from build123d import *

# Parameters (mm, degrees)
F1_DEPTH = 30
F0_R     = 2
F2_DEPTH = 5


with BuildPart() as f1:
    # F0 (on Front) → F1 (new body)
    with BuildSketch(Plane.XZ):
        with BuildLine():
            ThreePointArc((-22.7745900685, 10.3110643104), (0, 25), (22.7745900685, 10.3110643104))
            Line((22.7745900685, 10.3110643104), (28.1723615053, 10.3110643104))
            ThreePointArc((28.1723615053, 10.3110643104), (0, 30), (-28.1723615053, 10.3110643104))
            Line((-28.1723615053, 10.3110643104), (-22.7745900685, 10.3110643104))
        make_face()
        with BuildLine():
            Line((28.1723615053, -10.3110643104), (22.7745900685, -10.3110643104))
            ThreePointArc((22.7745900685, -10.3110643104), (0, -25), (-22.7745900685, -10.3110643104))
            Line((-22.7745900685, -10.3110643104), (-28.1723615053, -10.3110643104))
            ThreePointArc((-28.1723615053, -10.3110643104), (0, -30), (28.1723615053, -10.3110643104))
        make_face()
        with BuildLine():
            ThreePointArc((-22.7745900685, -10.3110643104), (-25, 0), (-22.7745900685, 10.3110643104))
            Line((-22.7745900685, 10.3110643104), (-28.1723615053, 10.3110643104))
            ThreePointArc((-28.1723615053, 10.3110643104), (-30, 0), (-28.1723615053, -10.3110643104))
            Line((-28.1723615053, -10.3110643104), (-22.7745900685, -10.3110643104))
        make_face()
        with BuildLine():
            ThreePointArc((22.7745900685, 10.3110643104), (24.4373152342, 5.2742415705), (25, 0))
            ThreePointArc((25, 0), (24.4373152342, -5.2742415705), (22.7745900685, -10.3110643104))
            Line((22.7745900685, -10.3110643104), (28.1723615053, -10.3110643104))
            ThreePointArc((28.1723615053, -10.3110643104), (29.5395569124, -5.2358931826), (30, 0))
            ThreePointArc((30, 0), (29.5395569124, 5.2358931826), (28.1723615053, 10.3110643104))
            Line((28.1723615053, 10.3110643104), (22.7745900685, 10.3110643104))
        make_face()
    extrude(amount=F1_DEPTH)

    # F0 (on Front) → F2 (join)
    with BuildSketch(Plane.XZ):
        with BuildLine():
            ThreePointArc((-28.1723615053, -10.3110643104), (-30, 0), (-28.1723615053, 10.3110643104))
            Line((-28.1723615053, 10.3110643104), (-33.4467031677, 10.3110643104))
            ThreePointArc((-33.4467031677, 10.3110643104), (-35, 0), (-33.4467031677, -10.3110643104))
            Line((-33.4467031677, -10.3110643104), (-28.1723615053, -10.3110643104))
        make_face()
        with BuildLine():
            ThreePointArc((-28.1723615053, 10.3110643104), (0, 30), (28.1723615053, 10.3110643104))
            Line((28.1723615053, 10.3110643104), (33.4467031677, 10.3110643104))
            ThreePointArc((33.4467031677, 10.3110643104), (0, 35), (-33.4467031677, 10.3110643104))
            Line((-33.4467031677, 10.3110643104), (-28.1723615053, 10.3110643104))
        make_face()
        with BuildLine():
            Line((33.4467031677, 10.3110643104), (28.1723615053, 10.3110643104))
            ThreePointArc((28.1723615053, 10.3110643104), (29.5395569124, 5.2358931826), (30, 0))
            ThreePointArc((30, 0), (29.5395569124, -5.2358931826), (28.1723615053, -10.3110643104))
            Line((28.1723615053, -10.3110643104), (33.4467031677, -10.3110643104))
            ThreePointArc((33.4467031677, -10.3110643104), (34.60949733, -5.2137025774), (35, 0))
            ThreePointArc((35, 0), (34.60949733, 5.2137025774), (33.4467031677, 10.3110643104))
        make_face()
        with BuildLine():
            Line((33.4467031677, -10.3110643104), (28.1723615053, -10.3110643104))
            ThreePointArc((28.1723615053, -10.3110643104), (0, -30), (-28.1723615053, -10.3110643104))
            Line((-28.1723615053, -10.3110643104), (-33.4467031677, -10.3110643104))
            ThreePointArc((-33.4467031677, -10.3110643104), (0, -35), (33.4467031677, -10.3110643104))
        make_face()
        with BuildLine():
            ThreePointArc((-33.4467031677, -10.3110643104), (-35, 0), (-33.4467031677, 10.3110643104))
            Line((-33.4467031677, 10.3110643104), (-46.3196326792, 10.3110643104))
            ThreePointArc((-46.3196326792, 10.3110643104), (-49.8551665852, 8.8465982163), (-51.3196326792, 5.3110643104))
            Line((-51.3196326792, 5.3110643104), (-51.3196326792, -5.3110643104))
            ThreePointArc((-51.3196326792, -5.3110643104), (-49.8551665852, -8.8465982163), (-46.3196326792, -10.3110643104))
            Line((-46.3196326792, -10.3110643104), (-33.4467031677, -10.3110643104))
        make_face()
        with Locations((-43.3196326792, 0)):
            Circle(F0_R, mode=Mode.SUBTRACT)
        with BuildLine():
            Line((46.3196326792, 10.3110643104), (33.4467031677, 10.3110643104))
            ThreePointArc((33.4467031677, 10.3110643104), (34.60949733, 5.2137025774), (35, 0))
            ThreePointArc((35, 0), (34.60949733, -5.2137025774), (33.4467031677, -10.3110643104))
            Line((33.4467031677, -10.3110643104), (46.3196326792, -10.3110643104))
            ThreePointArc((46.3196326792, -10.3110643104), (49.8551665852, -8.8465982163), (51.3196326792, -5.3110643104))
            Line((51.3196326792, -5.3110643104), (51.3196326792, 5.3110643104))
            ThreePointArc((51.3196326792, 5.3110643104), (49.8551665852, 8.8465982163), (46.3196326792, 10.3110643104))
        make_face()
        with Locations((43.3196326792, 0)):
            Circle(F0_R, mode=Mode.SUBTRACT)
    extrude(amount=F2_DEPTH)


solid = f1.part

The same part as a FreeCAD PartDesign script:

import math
import FreeCAD as App
import Part
import Sketcher

doc = App.newDocument("Part")
params = doc.addObject("Spreadsheet::Sheet", "Params")
for row, (alias, value) in enumerate([
    ("sketch1_radius", "30 mm"),
    ("sketch1_radius2", "25 mm"),
    ("pad1_length", "30 mm"),
    ("sketch2_diameter", "4 mm"),
    ("sketch2_radius", "35 mm"),
    ("sketch2_radius2", "5 mm"),
    ("sketch2_radius3", "30 mm"),
    ("pad2_length", "5 mm"),
], start=1):
    params.set(f"A{row}", alias)
    params.set(f"B{row}", "=" + value)
    params.setAlias(f"B{row}", alias)

body = doc.addObject("PartDesign::Body", "Body")

sketch1 = body.newObject("Sketcher::SketchObject", "Sketch")
sketch1.AttachmentSupport = (doc.getObject("XZ_Plane"), [""])
sketch1.MapMode = "FlatFace"
sketch1.addGeometry(Part.ArcOfCircle(Part.Circle(App.Vector(0, 0, 0), App.Vector(0, 0, 1), 30), math.radians(20), math.radians(160)), False)
sketch1.addGeometry(Part.ArcOfCircle(Part.Circle(App.Vector(0, 0, 0), App.Vector(0, 0, 1), 30), math.radians(160), math.radians(200)), False)
sketch1.addGeometry(Part.ArcOfCircle(Part.Circle(App.Vector(0, 0, 0), App.Vector(0, 0, 1), 30), math.radians(-160), math.radians(-20)), False)
sketch1.addGeometry(Part.ArcOfCircle(Part.Circle(App.Vector(0, 0, 0), App.Vector(0, 0, 1), 30), math.radians(-20), math.radians(0)), False)
sketch1.addGeometry(Part.ArcOfCircle(Part.Circle(App.Vector(0, 0, 0), App.Vector(0, 0, 1), 30), math.radians(0), math.radians(20)), False)
sketch1.addGeometry(Part.ArcOfCircle(Part.Circle(App.Vector(0, 0, 0), App.Vector(0, 0, 1), 25), math.radians(24), math.radians(156)), False)
sketch1.addGeometry(Part.ArcOfCircle(Part.Circle(App.Vector(0, 0, 0), App.Vector(0, 0, 1), 25), math.radians(0), math.radians(24)), False)
sketch1.addGeometry(Part.ArcOfCircle(Part.Circle(App.Vector(0, 0, 0), App.Vector(0, 0, 1), 25), math.radians(-24), math.radians(0)), False)
sketch1.addGeometry(Part.ArcOfCircle(Part.Circle(App.Vector(0, 0, 0), App.Vector(0, 0, 1), 25), math.radians(-156), math.radians(-24)), False)
sketch1.addGeometry(Part.ArcOfCircle(Part.Circle(App.Vector(0, 0, 0), App.Vector(0, 0, 1), 25), math.radians(156), math.radians(204)), False)
sketch1.addConstraint(Sketcher.Constraint("Tangent", 0, 2, 1, 1))
sketch1.addConstraint(Sketcher.Constraint("Tangent", 1, 2, 2, 1))
sketch1.addConstraint(Sketcher.Constraint("Tangent", 2, 2, 3, 1))
sketch1.addConstraint(Sketcher.Constraint("Tangent", 3, 2, 4, 1))
sketch1.addConstraint(Sketcher.Constraint("Tangent", 4, 2, 0, 1))
sketch1.addConstraint(Sketcher.Constraint("Tangent", 5, 1, 6, 2))
sketch1.addConstraint(Sketcher.Constraint("Tangent", 6, 1, 7, 2))
sketch1.addConstraint(Sketcher.Constraint("Tangent", 7, 1, 8, 2))
sketch1.addConstraint(Sketcher.Constraint("Tangent", 8, 1, 9, 2))
sketch1.addConstraint(Sketcher.Constraint("Tangent", 9, 1, 5, 2))
sketch1.addConstraint(Sketcher.Constraint("Coincident", 0, 3, -1, 1))
sketch1.addConstraint(Sketcher.Constraint("Coincident", 2, 3, -1, 1))
sketch1.addConstraint(Sketcher.Constraint("Coincident", 5, 3, -1, 1))
sketch1.addConstraint(Sketcher.Constraint("Coincident", 7, 3, -1, 1))
sketch1.addConstraint(Sketcher.Constraint("PointOnObject", 3, 2, -1))
sketch1.addConstraint(Sketcher.Constraint("PointOnObject", 6, 1, -1))
sketch1.addConstraint(Sketcher.Constraint("Horizontal", 1, 2, 2, 2))
sketch1.addConstraint(Sketcher.Constraint("Horizontal", 0, 2, 4, 2))
sketch1.addConstraint(Sketcher.Constraint("Horizontal", 4, 2, 5, 1))
sketch1.addConstraint(Sketcher.Constraint("Horizontal", 2, 2, 7, 1))
sketch1.addConstraint(Sketcher.Constraint("Horizontal", 7, 1, 8, 1))
sketch1.addConstraint(Sketcher.Constraint("Horizontal", 5, 1, 9, 1))
sketch1.addConstraint(Sketcher.Constraint("Vertical", 0, 2, 1, 2))
sketch1.addConstraint(Sketcher.Constraint("Radius", 0, 30.0))
sketch1.addConstraint(Sketcher.Constraint("Radius", 5, 25.0))
sketch1.addConstraint(Sketcher.Constraint("DistanceX", 0, 2, -1, 1, 28.172362))
sketch1.setExpression("Constraints[23]", "Params.sketch1_radius")
sketch1.setExpression("Constraints[24]", "Params.sketch1_radius2")
pad1 = body.newObject("PartDesign::Pad", "Pad")
pad1.Profile = sketch1
pad1.setExpression("Length", "Params.pad1_length")

sketch2 = body.newObject("Sketcher::SketchObject", "Sketch001")
sketch2.AttachmentSupport = (doc.getObject("XZ_Plane"), [""])
sketch2.MapMode = "FlatFace"
sketch2.addGeometry(Part.ArcOfCircle(Part.Circle(App.Vector(0, 0, 0), App.Vector(0, 0, 1), 35), math.radians(-163), math.radians(-17)), False)
sketch2.addGeometry(Part.LineSegment(App.Vector(33.4, -10.3, 0), App.Vector(46.3, -10.3, 0)), False)
sketch2.addGeometry(Part.ArcOfCircle(Part.Circle(App.Vector(46.3, -5.3, 0), App.Vector(0, 0, 1), 5), math.radians(-90), math.radians(0)), False)
sketch2.addGeometry(Part.LineSegment(App.Vector(51.3, -5.3, 0), App.Vector(51.3, 5.3, 0)), False)
sketch2.addGeometry(Part.ArcOfCircle(Part.Circle(App.Vector(46.3, 5.3, 0), App.Vector(0, 0, 1), 5), math.radians(0), math.radians(90)), False)
sketch2.addGeometry(Part.LineSegment(App.Vector(46.3, 10.3, 0), App.Vector(33.4, 10.3, 0)), False)
sketch2.addGeometry(Part.ArcOfCircle(Part.Circle(App.Vector(0, 0, 0), App.Vector(0, 0, 1), 35), math.radians(17), math.radians(163)), False)
sketch2.addGeometry(Part.LineSegment(App.Vector(-33.4, 10.3, 0), App.Vector(-46.3, 10.3, 0)), False)
sketch2.addGeometry(Part.ArcOfCircle(Part.Circle(App.Vector(-46.3, 5.3, 0), App.Vector(0, 0, 1), 5), math.radians(90), math.radians(180)), False)
sketch2.addGeometry(Part.LineSegment(App.Vector(-51.3, 5.3, 0), App.Vector(-51.3, -5.3, 0)), False)
sketch2.addGeometry(Part.ArcOfCircle(Part.Circle(App.Vector(-46.3, -5.3, 0), App.Vector(0, 0, 1), 5), math.radians(180), math.radians(270)), False)
sketch2.addGeometry(Part.LineSegment(App.Vector(-46.3, -10.3, 0), App.Vector(-33.4, -10.3, 0)), False)
sketch2.addGeometry(Part.Circle(App.Vector(-43.3, 0, 0), App.Vector(0, 0, 1), 2), False)
sketch2.addGeometry(Part.ArcOfCircle(Part.Circle(App.Vector(0, 0, 0), App.Vector(0, 0, 1), 30), math.radians(160), math.radians(200)), False)
sketch2.addGeometry(Part.ArcOfCircle(Part.Circle(App.Vector(0, 0, 0), App.Vector(0, 0, 1), 30), math.radians(20), math.radians(160)), False)
sketch2.addGeometry(Part.ArcOfCircle(Part.Circle(App.Vector(0, 0, 0), App.Vector(0, 0, 1), 30), math.radians(0), math.radians(20)), False)
sketch2.addGeometry(Part.ArcOfCircle(Part.Circle(App.Vector(0, 0, 0), App.Vector(0, 0, 1), 30), math.radians(-20), math.radians(0)), False)
sketch2.addGeometry(Part.ArcOfCircle(Part.Circle(App.Vector(0, 0, 0), App.Vector(0, 0, 1), 30), math.radians(-160), math.radians(-20)), False)
sketch2.addGeometry(Part.Circle(App.Vector(43.3, 0, 0), App.Vector(0, 0, 1), 2), False)
sketch2.addConstraint(Sketcher.Constraint("Coincident", 0, 2, 1, 1))
sketch2.addConstraint(Sketcher.Constraint("Tangent", 1, 2, 2, 1))
sketch2.addConstraint(Sketcher.Constraint("Tangent", 2, 2, 3, 1))
sketch2.addConstraint(Sketcher.Constraint("Tangent", 3, 2, 4, 1))
sketch2.addConstraint(Sketcher.Constraint("Tangent", 4, 2, 5, 1))
sketch2.addConstraint(Sketcher.Constraint("Coincident", 5, 2, 6, 1))
sketch2.addConstraint(Sketcher.Constraint("Coincident", 6, 2, 7, 1))
sketch2.addConstraint(Sketcher.Constraint("Tangent", 7, 2, 8, 1))
sketch2.addConstraint(Sketcher.Constraint("Tangent", 8, 2, 9, 1))
sketch2.addConstraint(Sketcher.Constraint("Tangent", 9, 2, 10, 1))
sketch2.addConstraint(Sketcher.Constraint("Tangent", 10, 2, 11, 1))
sketch2.addConstraint(Sketcher.Constraint("Coincident", 11, 2, 0, 1))
sketch2.addConstraint(Sketcher.Constraint("Tangent", 13, 1, 14, 2))
sketch2.addConstraint(Sketcher.Constraint("Tangent", 14, 1, 15, 2))
sketch2.addConstraint(Sketcher.Constraint("Tangent", 15, 1, 16, 2))
sketch2.addConstraint(Sketcher.Constraint("Tangent", 16, 1, 17, 2))
sketch2.addConstraint(Sketcher.Constraint("Tangent", 17, 1, 13, 2))
sketch2.addConstraint(Sketcher.Constraint("Horizontal", 1))
sketch2.addConstraint(Sketcher.Constraint("Vertical", 3))
sketch2.addConstraint(Sketcher.Constraint("Horizontal", 5))
sketch2.addConstraint(Sketcher.Constraint("Horizontal", 7))
sketch2.addConstraint(Sketcher.Constraint("Vertical", 9))
sketch2.addConstraint(Sketcher.Constraint("Horizontal", 11))
sketch2.addConstraint(Sketcher.Constraint("Coincident", 0, 3, -1, 1))
sketch2.addConstraint(Sketcher.Constraint("Coincident", 6, 3, -1, 1))
sketch2.addConstraint(Sketcher.Constraint("Coincident", 13, 3, -1, 1))
sketch2.addConstraint(Sketcher.Constraint("Coincident", 15, 3, -1, 1))
sketch2.addConstraint(Sketcher.Constraint("Equal", 2, 4))
sketch2.addConstraint(Sketcher.Constraint("Equal", 0, 6))
sketch2.addConstraint(Sketcher.Constraint("Equal", 4, 8))
sketch2.addConstraint(Sketcher.Constraint("Equal", 8, 10))
sketch2.addConstraint(Sketcher.Constraint("Equal", 12, 18))
sketch2.addConstraint(Sketcher.Constraint("Symmetric", 2, 3, 8, 3, -1, 1))
sketch2.addConstraint(Sketcher.Constraint("Symmetric", 12, 3, 18, 3, -1, 1))
sketch2.addConstraint(Sketcher.Constraint("PointOnObject", 12, 3, -1))
sketch2.addConstraint(Sketcher.Constraint("PointOnObject", 15, 1, -1))
sketch2.addConstraint(Sketcher.Constraint("Horizontal", 4, 3, 8, 3))
sketch2.addConstraint(Sketcher.Constraint("Horizontal", 2, 3, 10, 3))
sketch2.addConstraint(Sketcher.Constraint("Horizontal", 7, 2, 13, 1))
sketch2.addConstraint(Sketcher.Constraint("Horizontal", 13, 1, 14, 1))
sketch2.addConstraint(Sketcher.Constraint("Horizontal", 11, 2, 16, 1))
sketch2.addConstraint(Sketcher.Constraint("Horizontal", 16, 1, 17, 1))
sketch2.addConstraint(Sketcher.Constraint("Diameter", 12, 4.0))
sketch2.addConstraint(Sketcher.Constraint("Radius", 0, 35.0))
sketch2.addConstraint(Sketcher.Constraint("Radius", 2, 5.0))
sketch2.addConstraint(Sketcher.Constraint("Radius", 13, 30.0))
sketch2.addConstraint(Sketcher.Constraint("DistanceX", 8, 3, 12, 3, 3.0))
sketch2.addConstraint(Sketcher.Constraint("DistanceX", 1, 1, 1, 2, 12.87293))
sketch2.addConstraint(Sketcher.Constraint("DistanceY", 3, 1, 3, 2, 10.622129))
sketch2.setExpression("Constraints[42]", "Params.sketch2_diameter")
sketch2.setExpression("Constraints[43]", "Params.sketch2_radius")
sketch2.setExpression("Constraints[44]", "Params.sketch2_radius2")
sketch2.setExpression("Constraints[45]", "Params.sketch2_radius3")
pad2 = body.newObject("PartDesign::Pad", "Pad001")
pad2.Profile = sketch2
pad2.setExpression("Length", "Params.pad2_length")

doc.recompute()
